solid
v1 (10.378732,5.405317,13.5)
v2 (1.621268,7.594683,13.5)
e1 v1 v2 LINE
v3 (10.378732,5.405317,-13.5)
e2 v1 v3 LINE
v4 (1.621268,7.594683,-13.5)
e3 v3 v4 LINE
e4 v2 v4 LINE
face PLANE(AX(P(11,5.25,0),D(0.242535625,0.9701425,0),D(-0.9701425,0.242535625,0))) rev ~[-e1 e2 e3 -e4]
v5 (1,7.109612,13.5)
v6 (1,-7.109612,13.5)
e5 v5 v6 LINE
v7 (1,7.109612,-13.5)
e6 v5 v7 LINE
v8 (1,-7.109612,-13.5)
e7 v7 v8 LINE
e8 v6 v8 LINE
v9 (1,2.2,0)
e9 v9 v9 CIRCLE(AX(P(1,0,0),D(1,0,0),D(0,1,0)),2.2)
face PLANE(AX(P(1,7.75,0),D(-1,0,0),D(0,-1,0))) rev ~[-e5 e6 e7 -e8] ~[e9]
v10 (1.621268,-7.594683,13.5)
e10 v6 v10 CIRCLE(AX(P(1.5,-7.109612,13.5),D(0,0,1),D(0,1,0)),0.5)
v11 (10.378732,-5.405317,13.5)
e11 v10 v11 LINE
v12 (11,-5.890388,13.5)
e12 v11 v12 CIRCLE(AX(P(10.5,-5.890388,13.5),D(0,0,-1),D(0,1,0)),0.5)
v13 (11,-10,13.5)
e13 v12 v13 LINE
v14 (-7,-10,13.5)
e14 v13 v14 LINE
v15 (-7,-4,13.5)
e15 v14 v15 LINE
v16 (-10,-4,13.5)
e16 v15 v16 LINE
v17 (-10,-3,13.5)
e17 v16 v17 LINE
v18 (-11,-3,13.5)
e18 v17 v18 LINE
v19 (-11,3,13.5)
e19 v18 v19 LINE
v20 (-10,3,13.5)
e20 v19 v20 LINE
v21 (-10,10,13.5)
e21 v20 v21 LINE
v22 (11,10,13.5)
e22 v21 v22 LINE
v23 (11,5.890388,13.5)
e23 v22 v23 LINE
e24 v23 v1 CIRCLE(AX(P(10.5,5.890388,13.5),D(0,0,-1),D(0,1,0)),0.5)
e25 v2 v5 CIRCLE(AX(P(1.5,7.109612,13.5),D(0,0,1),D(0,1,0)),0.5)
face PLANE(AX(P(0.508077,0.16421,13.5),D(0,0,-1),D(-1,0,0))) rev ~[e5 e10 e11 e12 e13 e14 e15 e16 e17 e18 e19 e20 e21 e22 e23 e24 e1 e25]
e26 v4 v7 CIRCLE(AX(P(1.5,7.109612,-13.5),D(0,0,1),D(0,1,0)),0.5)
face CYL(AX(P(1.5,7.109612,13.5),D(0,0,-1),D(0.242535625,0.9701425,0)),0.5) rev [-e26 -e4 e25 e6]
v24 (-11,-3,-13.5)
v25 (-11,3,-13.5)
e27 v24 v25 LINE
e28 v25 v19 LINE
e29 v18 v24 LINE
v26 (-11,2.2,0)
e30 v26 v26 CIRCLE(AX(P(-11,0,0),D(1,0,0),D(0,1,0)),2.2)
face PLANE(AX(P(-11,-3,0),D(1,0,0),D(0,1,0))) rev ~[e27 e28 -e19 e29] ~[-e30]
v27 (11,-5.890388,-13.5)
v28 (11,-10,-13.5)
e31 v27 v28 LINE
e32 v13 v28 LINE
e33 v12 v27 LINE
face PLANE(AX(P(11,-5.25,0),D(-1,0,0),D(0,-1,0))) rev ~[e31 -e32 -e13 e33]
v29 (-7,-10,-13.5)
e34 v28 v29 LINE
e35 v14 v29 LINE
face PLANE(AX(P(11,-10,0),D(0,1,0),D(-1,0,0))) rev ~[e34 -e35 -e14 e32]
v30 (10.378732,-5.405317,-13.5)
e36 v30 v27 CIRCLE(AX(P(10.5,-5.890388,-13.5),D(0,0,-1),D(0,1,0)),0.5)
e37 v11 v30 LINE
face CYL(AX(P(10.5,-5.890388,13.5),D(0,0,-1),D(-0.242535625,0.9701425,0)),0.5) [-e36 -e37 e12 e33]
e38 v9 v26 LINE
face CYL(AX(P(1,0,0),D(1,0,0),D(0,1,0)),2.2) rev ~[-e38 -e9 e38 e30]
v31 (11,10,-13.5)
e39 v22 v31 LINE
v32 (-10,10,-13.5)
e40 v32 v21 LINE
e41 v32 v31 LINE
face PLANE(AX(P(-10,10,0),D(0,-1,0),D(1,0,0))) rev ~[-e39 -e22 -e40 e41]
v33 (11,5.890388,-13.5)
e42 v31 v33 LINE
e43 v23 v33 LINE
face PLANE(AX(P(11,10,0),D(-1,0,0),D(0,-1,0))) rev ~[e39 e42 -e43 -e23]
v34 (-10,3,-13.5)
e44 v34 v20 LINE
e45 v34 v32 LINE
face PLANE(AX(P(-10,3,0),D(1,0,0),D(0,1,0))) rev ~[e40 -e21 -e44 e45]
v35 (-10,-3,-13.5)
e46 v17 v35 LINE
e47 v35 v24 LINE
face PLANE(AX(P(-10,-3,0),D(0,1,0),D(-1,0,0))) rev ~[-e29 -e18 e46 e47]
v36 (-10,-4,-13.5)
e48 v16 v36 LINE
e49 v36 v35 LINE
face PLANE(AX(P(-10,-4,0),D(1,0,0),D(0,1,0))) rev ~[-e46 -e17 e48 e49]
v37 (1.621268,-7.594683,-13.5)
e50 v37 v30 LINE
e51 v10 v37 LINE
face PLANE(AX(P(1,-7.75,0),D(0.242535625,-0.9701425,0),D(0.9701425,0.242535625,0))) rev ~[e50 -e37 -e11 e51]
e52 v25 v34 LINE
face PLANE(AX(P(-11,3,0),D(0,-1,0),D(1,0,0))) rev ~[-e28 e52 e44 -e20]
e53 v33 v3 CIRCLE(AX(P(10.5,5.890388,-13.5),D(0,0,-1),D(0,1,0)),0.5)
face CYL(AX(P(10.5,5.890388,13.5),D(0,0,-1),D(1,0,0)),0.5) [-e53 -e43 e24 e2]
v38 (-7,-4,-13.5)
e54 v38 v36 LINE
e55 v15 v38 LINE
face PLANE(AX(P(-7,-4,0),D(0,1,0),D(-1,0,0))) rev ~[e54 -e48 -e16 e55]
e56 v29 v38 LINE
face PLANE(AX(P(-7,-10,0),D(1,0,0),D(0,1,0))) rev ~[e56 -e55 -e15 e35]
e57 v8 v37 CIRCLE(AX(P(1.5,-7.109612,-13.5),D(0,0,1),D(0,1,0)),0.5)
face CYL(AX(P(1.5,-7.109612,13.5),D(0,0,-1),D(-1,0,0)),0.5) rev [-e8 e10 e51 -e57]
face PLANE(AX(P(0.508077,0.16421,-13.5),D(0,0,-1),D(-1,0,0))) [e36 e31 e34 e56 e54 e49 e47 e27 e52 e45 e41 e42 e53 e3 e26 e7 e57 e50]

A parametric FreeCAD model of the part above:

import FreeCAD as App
import Part
import Sketcher

V = App.Vector


def edges_at(feature, points):
    """Names of the edges that pass closest to the given points."""
    edges = feature.Shape.Edges
    near = lambda p: min(range(len(edges)), key=lambda i: edges[i].distToShape(Part.Vertex(*p))[0])
    return sorted({f"Edge{near(p) + 1}" for p in points})

doc = App.newDocument("Part")
body = doc.addObject("PartDesign::Body", "Body")

# Sketch on XY plane
sketch1 = body.newObject("Sketcher::SketchObject", "Sketch")
sketch1.AttachmentSupport = (doc.getObject("XY_Plane"), [""])
sketch1.MapMode = "FlatFace"
sketch1.addGeometry(Part.LineSegment(V(11, 10, 0), V(-10, 10, 0)), False)
sketch1.addGeometry(Part.LineSegment(V(-10, 10, 0), V(-10, 3, 0)), False)
sketch1.addGeometry(Part.LineSegment(V(-10, 3, 0), V(-11, 3, 0)), False)
sketch1.addGeometry(Part.LineSegment(V(-11, 3, 0), V(-11, -3, 0)), False)
sketch1.addGeometry(Part.LineSegment(V(-11, -3, 0), V(-10, -3, 0)), False)
sketch1.addGeometry(Part.LineSegment(V(-10, -3, 0), V(-10, -4, 0)), False)
sketch1.addGeometry(Part.LineSegment(V(-10, -4, 0), V(-7, -4, 0)), False)
sketch1.addGeometry(Part.LineSegment(V(-7, -4, 0), V(-7, -10, 0)), False)
sketch1.addGeometry(Part.LineSegment(V(-7, -10, 0), V(11, -10, 0)), False)
sketch1.addGeometry(Part.LineSegment(V(11, -10, 0), V(11, -5.25, 0)), False)
sketch1.addGeometry(Part.LineSegment(V(11, -5.25, 0), V(1, -7.75, 0)), False)
sketch1.addGeometry(Part.LineSegment(V(1, -7.75, 0), V(1, 7.75, 0)), False)
sketch1.addGeometry(Part.LineSegment(V(1, 7.75, 0), V(11, 5.25, 0)), False)
sketch1.addGeometry(Part.LineSegment(V(11, 5.25, 0), V(11, 10, 0)), False)
sketch1.addConstraint(Sketcher.Constraint("Coincident", 0, 2, 1, 1))
sketch1.addConstraint(Sketcher.Constraint("Coincident", 1, 2, 2, 1))
sketch1.addConstraint(Sketcher.Constraint("Coincident", 2, 2, 3, 1))
sketch1.addConstraint(Sketcher.Constraint("Coincident", 3, 2, 4, 1))
sketch1.addConstraint(Sketcher.Constraint("Coincident", 4, 2, 5, 1))
sketch1.addConstraint(Sketcher.Constraint("Coincident", 5, 2, 6, 1))
sketch1.addConstraint(Sketcher.Constraint("Coincident", 6, 2, 7, 1))
sketch1.addConstraint(Sketcher.Constraint("Coincident", 7, 2, 8, 1))
sketch1.addConstraint(Sketcher.Constraint("Coincident", 8, 2, 9, 1))
sketch1.addConstraint(Sketcher.Constraint("Coincident", 9, 2, 10, 1))
sketch1.addConstraint(Sketcher.Constraint("Coincident", 10, 2, 11, 1))
sketch1.addConstraint(Sketcher.Constraint("Coincident", 11, 2, 12, 1))
sketch1.addConstraint(Sketcher.Constraint("Coincident", 12, 2, 13, 1))
sketch1.addConstraint(Sketcher.Constraint("Coincident", 13, 2, 0, 1))
sketch1.addConstraint(Sketcher.Constraint("Horizontal", 0))
sketch1.addConstraint(Sketcher.Constraint("Vertical", 1))
sketch1.addConstraint(Sketcher.Constraint("Horizontal", 2))
sketch1.addConstraint(Sketcher.Constraint("Vertical", 3))
sketch1.addConstraint(Sketcher.Constraint("Horizontal", 4))
sketch1.addConstraint(Sketcher.Constraint("Vertical", 5))
sketch1.addConstraint(Sketcher.Constraint("Horizontal", 6))
sketch1.addConstraint(Sketcher.Constraint("Vertical", 7))
sketch1.addConstraint(Sketcher.Constraint("Horizontal", 8))
sketch1.addConstraint(Sketcher.Constraint("Vertical", 9))
sketch1.addConstraint(Sketcher.Constraint("Vertical", 11))
sketch1.addConstraint(Sketcher.Constraint("Vertical", 13))
sketch1.addConstraint(Sketcher.Constraint("Symmetric", 1, 2, 4, 2, -1))
sketch1.addConstraint(Sketcher.Constraint("Symmetric", 9, 2, 12, 2, -1))
sketch1.addConstraint(Sketcher.Constraint("Equal", 4, 5))
sketch1.addConstraint(Sketcher.Constraint("Equal", 3, 7))
sketch1.addConstraint(Sketcher.Constraint("Equal", 9, 13))
sketch1.addConstraint(Sketcher.Constraint("Equal", 10, 12))
sketch1.addConstraint(Sketcher.Constraint("DistanceX", 0, 2, 0, 1, 21.0))
sketch1.addConstraint(Sketcher.Constraint("DistanceX", 2, 2, 2, 1, 1.0))
sketch1.addConstraint(Sketcher.Constraint("DistanceX", 6, 1, 6, 2, 3.0))
sketch1.addConstraint(Sketcher.Constraint("DistanceY", 1, 2, 1, 1, 7.0))
sketch1.addConstraint(Sketcher.Constraint("DistanceY", 11, 1, 11, 2, 15.5))
sketch1.addConstraint(Sketcher.Constraint("DistanceX", 0, 2, -1, 1, 10.0))
sketch1.addConstraint(Sketcher.Constraint("DistanceX", -1, 1, 10, 2, 1.0))
sketch1.addConstraint(Sketcher.Constraint("DistanceY", 10, 2, 12, 2, 13.0))
pad1 = body.newObject("PartDesign::Pad", "Pad")
pad1.Profile = sketch1
pad1.Length = 27
pad1.Midplane = True

# Sketch on YZ plane
sketch2 = body.newObject("Sketcher::SketchObject", "Sketch001")
sketch2.AttachmentSupport = (doc.getObject("YZ_Plane"), [""])
sketch2.MapMode = "FlatFace"
sketch2.AttachmentOffset = App.Placement(V(0, 0, 1), App.Rotation())
sketch2.addGeometry(Part.Circle(V(0, 0, 0), V(0, 0, 1), 2.2), False)
sketch2.addConstraint(Sketcher.Constraint("Coincident", 0, 3, -1, 1))
sketch2.addConstraint(Sketcher.Constraint("Diameter", 0, 4.4))
pocket1 = body.newObject("PartDesign::Pocket", "Pocket")
pocket1.Profile = sketch2
pocket1.Type = "ThroughAll"
doc.recompute()

fillet = body.newObject("PartDesign::Fillet", "Fillet")
fillet.Base = (pocket1, edges_at(pocket1, [
    (1, 7.75, 0),
    (1, -7.75, 0),
    (11, -5.25, 0),
    (11, 5.25, 0),
]))
fillet.Radius = 0.5

doc.recompute()
